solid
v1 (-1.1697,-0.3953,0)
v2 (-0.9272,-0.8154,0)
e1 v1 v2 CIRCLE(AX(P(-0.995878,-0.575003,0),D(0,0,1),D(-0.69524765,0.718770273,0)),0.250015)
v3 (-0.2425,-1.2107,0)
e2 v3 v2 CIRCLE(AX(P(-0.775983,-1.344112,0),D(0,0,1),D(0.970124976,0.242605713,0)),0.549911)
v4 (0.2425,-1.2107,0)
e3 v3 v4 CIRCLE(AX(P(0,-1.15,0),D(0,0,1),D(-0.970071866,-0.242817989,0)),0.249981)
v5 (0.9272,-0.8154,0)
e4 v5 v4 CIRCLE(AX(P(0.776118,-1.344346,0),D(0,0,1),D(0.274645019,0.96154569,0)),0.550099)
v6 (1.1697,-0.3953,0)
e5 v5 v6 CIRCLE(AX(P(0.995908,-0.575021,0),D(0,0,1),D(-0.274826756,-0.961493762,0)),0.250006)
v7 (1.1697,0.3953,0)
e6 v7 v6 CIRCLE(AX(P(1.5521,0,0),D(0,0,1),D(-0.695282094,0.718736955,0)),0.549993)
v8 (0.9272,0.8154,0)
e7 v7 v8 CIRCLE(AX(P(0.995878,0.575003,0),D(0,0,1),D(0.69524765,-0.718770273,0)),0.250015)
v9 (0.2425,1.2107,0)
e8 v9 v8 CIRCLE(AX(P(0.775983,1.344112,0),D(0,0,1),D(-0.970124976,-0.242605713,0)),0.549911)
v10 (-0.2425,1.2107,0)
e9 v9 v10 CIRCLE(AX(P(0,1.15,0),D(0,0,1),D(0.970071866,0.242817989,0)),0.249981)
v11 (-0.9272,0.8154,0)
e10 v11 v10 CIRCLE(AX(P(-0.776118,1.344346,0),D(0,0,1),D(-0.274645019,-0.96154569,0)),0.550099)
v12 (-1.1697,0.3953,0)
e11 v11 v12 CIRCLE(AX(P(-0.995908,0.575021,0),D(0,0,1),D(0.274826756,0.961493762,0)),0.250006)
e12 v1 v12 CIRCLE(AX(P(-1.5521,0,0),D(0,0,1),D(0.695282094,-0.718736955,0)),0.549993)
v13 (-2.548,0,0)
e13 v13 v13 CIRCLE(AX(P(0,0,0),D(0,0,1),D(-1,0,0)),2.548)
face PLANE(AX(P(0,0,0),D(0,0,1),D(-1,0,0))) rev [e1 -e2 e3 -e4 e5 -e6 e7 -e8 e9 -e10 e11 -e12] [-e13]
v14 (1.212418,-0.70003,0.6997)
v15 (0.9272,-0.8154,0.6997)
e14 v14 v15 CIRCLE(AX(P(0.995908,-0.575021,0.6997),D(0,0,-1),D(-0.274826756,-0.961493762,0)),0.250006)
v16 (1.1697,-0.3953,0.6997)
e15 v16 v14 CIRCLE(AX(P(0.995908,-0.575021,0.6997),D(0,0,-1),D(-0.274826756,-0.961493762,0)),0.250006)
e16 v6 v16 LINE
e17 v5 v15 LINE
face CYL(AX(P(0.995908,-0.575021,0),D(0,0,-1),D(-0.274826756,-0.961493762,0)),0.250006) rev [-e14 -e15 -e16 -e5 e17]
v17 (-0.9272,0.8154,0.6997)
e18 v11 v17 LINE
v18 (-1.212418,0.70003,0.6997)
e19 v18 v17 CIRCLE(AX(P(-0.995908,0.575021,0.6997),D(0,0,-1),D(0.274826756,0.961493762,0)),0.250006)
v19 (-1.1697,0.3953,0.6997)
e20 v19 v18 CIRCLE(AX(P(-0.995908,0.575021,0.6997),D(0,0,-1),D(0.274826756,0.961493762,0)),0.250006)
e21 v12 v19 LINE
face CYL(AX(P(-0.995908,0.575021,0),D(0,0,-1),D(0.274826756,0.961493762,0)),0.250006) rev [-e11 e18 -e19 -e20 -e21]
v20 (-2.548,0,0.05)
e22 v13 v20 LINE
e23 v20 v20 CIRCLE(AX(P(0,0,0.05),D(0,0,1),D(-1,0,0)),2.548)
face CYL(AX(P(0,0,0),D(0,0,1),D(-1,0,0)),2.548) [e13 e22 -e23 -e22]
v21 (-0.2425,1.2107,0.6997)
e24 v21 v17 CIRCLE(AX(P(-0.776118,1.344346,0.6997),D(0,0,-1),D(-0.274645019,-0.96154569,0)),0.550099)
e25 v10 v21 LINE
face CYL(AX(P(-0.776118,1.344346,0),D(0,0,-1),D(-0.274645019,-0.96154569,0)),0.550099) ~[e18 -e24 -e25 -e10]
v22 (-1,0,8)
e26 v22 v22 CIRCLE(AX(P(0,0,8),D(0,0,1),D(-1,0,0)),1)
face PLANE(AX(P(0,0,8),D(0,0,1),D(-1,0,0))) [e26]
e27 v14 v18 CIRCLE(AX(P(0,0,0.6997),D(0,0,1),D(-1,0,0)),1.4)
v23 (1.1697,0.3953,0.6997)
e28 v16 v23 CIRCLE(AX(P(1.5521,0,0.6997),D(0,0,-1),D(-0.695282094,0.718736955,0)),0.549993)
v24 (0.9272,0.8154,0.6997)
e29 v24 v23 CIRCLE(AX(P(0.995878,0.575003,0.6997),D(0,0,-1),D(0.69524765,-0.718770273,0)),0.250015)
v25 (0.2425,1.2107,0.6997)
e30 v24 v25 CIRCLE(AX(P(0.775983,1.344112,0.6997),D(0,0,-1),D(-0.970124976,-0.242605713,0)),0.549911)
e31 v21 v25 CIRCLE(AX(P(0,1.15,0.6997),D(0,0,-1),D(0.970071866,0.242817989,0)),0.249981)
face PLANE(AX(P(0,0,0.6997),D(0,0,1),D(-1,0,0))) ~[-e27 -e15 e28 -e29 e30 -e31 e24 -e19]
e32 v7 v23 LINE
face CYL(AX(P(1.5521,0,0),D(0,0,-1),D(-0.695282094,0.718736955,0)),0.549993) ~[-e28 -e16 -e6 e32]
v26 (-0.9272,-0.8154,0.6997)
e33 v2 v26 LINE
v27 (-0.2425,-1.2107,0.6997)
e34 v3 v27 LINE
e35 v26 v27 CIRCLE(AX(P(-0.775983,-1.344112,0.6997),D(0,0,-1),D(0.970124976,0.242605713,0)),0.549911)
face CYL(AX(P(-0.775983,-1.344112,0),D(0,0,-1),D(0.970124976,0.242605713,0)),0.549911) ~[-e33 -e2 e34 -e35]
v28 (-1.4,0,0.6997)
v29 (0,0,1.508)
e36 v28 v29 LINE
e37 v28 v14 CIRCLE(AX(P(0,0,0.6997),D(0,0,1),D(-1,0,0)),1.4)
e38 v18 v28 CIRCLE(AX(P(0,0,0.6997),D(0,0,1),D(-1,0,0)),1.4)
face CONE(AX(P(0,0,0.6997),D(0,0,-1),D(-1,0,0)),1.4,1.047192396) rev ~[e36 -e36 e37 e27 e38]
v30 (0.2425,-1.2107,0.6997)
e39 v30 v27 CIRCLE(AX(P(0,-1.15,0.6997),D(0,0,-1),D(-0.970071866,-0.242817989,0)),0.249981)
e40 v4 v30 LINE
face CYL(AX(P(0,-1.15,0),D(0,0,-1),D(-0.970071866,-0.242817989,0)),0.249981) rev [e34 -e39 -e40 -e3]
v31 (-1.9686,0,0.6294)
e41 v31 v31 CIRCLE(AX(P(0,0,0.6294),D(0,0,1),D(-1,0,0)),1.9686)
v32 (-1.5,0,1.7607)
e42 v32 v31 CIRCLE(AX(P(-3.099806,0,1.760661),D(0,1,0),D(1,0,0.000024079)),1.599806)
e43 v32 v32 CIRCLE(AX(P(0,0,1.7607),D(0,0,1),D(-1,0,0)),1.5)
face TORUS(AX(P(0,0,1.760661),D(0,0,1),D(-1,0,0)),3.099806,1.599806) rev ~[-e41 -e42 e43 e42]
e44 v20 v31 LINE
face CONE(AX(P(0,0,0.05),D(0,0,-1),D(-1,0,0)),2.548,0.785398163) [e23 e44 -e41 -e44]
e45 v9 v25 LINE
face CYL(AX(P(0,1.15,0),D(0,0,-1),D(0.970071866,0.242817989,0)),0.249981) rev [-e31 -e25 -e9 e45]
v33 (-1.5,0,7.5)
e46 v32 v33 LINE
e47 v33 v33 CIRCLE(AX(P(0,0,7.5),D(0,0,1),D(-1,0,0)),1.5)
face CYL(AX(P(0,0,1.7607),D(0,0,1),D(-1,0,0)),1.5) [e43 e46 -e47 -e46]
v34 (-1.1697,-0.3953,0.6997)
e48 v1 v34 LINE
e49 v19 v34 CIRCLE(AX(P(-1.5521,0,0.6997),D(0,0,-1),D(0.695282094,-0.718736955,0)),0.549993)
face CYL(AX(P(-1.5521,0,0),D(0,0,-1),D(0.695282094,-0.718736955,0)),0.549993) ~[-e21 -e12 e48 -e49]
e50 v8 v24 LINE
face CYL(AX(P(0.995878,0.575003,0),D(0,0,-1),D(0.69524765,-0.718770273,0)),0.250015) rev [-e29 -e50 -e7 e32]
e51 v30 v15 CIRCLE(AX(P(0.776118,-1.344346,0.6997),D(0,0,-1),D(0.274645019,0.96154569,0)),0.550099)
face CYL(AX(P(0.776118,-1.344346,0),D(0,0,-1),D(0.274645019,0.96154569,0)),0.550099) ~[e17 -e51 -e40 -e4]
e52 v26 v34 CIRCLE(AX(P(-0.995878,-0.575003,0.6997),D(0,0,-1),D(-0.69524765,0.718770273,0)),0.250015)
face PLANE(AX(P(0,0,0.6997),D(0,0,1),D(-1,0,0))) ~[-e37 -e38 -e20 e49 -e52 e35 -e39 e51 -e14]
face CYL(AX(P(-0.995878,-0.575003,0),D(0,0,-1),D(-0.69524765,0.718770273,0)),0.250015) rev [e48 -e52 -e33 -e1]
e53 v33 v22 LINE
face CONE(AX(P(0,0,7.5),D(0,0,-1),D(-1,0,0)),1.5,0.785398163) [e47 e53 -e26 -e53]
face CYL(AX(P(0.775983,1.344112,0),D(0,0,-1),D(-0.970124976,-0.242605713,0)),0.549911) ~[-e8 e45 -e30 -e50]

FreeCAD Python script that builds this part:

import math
import FreeCAD as App
import Part
import Sketcher
from FreeCAD import Vector
Q = App.Units.Quantity

doc = App.newDocument("Part")
body = doc.addObject("PartDesign::Body", "Body")

sketch1 = body.newObject("Sketcher::SketchObject", "Sketch")
sketch1.AttachmentSupport = (doc.getObject("XZ_Plane"), [""])
sketch1.MapMode = "FlatFace"
sketch1.addGeometry([
    Part.LineSegment(Vector(0, 0.7, 0), Vector(0, 0, 0)),
    Part.LineSegment(Vector(0, 0, 0), Vector(-2.55, 0, 0)),
    Part.LineSegment(Vector(-2.55, 0, 0), Vector(-2.55, 0.05, 0)),
    Part.LineSegment(Vector(-2.55, 0.05, 0), Vector(-1.97, 0.63, 0)),
    Part.ArcOfCircle(Part.Circle(Vector(-3.1, 1.76, 0), Vector(0, 0, 1), 1.6), math.radians(-45), math.radians(0)),
    Part.LineSegment(Vector(-1.5, 1.76, 0), Vector(-1.5, 7.5, 0)),
    Part.LineSegment(Vector(-1.5, 7.5, 0), Vector(-1, 8, 0)),
    Part.LineSegment(Vector(-1, 8, 0), Vector(0, 8, 0)),
    Part.LineSegment(Vector(0, 8, 0), Vector(0, 1.51, 0)),
    Part.LineSegment(Vector(0, 1.51, 0), Vector(-1.4, 0.7, 0)),
    Part.LineSegment(Vector(-1.4, 0.7, 0), Vector(0, 0.7, 0)),
], False)
sketch1.addConstraint([
    Sketcher.Constraint("Coincident", 0, 2, 1, 1),
    Sketcher.Constraint("Coincident", 1, 2, 2, 1),
    Sketcher.Constraint("Coincident", 2, 2, 3, 1),
    Sketcher.Constraint("Tangent", 3, 2, 4, 1),
    Sketcher.Constraint("Tangent", 4, 2, 5, 1),
    Sketcher.Constraint("Coincident", 5, 2, 6, 1),
    Sketcher.Constraint("Coincident", 6, 2, 7, 1),
    Sketcher.Constraint("Coincident", 7, 2, 8, 1),
    Sketcher.Constraint("Coincident", 8, 2, 9, 1),
    Sketcher.Constraint("Coincident", 9, 2, 10, 1),
    Sketcher.Constraint("Coincident", 10, 2, 0, 1),
    Sketcher.Constraint("Vertical", 0),
    Sketcher.Constraint("Horizontal", 1),
    Sketcher.Constraint("Vertical", 2),
    Sketcher.Constraint("Vertical", 5),
    Sketcher.Constraint("Horizontal", 7),
    Sketcher.Constraint("Vertical", 8),
    Sketcher.Constraint("Horizontal", 10),
    Sketcher.Constraint("Coincident", 0, 2, -1, 1),
    Sketcher.Constraint("PointOnObject", 7, 2, -2),
    Sketcher.Constraint("Parallel", 3, 6),
    Sketcher.Constraint("Radius", 4, 1.6),
    Sketcher.Constraint("Angle", 3, Q("45 deg")),
    Sketcher.Constraint("DistanceY", -1, 1, 6, 2, 8.0),
    Sketcher.Constraint("DistanceY", 2, 1, 2, 2, 0.05),
    Sketcher.Constraint("DistanceX", 5, 2, 6, 2, 0.5),
    Sketcher.Constraint("DistanceX", 7, 1, 7, 2, 1.0),
    Sketcher.Constraint("Angle", 9, Q("-149.9997 deg")),
    Sketcher.Constraint("DistanceX", 10, 1, 10, 2, 1.4),
    Sketcher.Constraint("DistanceY", -1, 1, 8, 2, 1.508),
    Sketcher.Constraint("DistanceX", 1, 2, 1, 1, 2.548),
])
revolution = body.newObject("PartDesign::Revolution", "Revolution")
revolution.Profile = sketch1
revolution.ReferenceAxis = (sketch1, ["V_Axis"])
revolution.Angle = 360

sketch2 = body.newObject("Sketcher::SketchObject", "Sketch001")
sketch2.AttachmentSupport = (doc.getObject("XY_Plane"), [""])
sketch2.MapMode = "FlatFace"
sketch2.addGeometry([
    Part.ArcOfCircle(Part.Circle(Vector(0.78, 1.34, 0), Vector(0, 0, 1), 0.55), math.radians(-166), math.radians(-74)),
    Part.ArcOfCircle(Part.Circle(Vector(0, 1.15, 0), Vector(0, 0, 1), 0.25), math.radians(14), math.radians(166)),
    Part.ArcOfCircle(Part.Circle(Vector(-0.78, 1.34, 0), Vector(0, 0, 1), 0.55), math.radians(-106), math.radians(-14)),
    Part.ArcOfCircle(Part.Circle(Vector(-1, 0.57, 0), Vector(0, 0, 1), 0.25), math.radians(74), math.radians(226)),
    Part.ArcOfCircle(Part.Circle(Vector(-1.55, 0, 0), Vector(0, 0, 1), 0.55), math.radians(-46), math.radians(46)),
    Part.ArcOfCircle(Part.Circle(Vector(-1, -0.57, 0), Vector(0, 0, 1), 0.25), math.radians(134), math.radians(286)),
    Part.ArcOfCircle(Part.Circle(Vector(-0.78, -1.34, 0), Vector(0, 0, 1), 0.55), math.radians(14), math.radians(106)),
    Part.ArcOfCircle(Part.Circle(Vector(0, -1.15, 0), Vector(0, 0, 1), 0.25), math.radians(-166), math.radians(-14)),
    Part.ArcOfCircle(Part.Circle(Vector(0.78, -1.34, 0), Vector(0, 0, 1), 0.55), math.radians(74), math.radians(166)),
    Part.ArcOfCircle(Part.Circle(Vector(1, -0.57, 0), Vector(0, 0, 1), 0.25), math.radians(-106), math.radians(46)),
    Part.ArcOfCircle(Part.Circle(Vector(1.55, 0, 0), Vector(0, 0, 1), 0.55), math.radians(134), math.radians(226)),
    Part.ArcOfCircle(Part.Circle(Vector(1, 0.57, 0), Vector(0, 0, 1), 0.25), math.radians(-46), math.radians(106)),
], False)
sketch2.addConstraint([
    Sketcher.Constraint("Tangent", 0, 1, 1, 1),
    Sketcher.Constraint("Tangent", 1, 2, 2, 2),
    Sketcher.Constraint("Tangent", 2, 1, 3, 1),
    Sketcher.Constraint("Tangent", 3, 2, 4, 2),
    Sketcher.Constraint("Tangent", 4, 1, 5, 1),
    Sketcher.Constraint("Tangent", 5, 2, 6, 2),
    Sketcher.Constraint("Tangent", 6, 1, 7, 1),
    Sketcher.Constraint("Tangent", 7, 2, 8, 2),
    Sketcher.Constraint("Tangent", 8, 1, 9, 1),
    Sketcher.Constraint("Tangent", 9, 2, 10, 2),
    Sketcher.Constraint("Tangent", 10, 1, 11, 1),
    Sketcher.Constraint("Tangent", 11, 2, 0, 2),
    Sketcher.Constraint("Equal", 0, 2),
    Sketcher.Constraint("Equal", 1, 3),
    Sketcher.Constraint("Equal", 2, 4),
    Sketcher.Constraint("Equal", 3, 5),
    Sketcher.Constraint("Equal", 4, 6),
    Sketcher.Constraint("Equal", 5, 7),
    Sketcher.Constraint("Equal", 6, 8),
    Sketcher.Constraint("Equal", 7, 9),
    Sketcher.Constraint("Equal", 8, 10),
    Sketcher.Constraint("Equal", 9, 11),
    Sketcher.Constraint("Symmetric", 0, 3, 6, 3, -1, 1),
    Sketcher.Constraint("Symmetric", 2, 3, 8, 3, -1, 1),
    Sketcher.Constraint("Symmetric", 4, 3, 10, 3, -1, 1),
    Sketcher.Constraint("Symmetric", 0, 3, 2, 3, -2),
    Sketcher.Constraint("PointOnObject", 4, 3, -1),
    Sketcher.Constraint("Radius", 0, 0.55),
    Sketcher.Constraint("Radius", 1, 0.25),
    Sketcher.Constraint("DistanceY", 7, 3, 1, 3, 2.3),
    Sketcher.Constraint("DistanceY", 5, 3, 3, 3, 1.15),
    Sketcher.Constraint("DistanceY", 3, 2, 2, 1, 0.42),
])
pocket1 = body.newObject("PartDesign::Pocket", "Pocket")
pocket1.Profile = sketch2
pocket1.Type = "UpToFirst"
pocket1.Reversed = True

doc.recompute()
